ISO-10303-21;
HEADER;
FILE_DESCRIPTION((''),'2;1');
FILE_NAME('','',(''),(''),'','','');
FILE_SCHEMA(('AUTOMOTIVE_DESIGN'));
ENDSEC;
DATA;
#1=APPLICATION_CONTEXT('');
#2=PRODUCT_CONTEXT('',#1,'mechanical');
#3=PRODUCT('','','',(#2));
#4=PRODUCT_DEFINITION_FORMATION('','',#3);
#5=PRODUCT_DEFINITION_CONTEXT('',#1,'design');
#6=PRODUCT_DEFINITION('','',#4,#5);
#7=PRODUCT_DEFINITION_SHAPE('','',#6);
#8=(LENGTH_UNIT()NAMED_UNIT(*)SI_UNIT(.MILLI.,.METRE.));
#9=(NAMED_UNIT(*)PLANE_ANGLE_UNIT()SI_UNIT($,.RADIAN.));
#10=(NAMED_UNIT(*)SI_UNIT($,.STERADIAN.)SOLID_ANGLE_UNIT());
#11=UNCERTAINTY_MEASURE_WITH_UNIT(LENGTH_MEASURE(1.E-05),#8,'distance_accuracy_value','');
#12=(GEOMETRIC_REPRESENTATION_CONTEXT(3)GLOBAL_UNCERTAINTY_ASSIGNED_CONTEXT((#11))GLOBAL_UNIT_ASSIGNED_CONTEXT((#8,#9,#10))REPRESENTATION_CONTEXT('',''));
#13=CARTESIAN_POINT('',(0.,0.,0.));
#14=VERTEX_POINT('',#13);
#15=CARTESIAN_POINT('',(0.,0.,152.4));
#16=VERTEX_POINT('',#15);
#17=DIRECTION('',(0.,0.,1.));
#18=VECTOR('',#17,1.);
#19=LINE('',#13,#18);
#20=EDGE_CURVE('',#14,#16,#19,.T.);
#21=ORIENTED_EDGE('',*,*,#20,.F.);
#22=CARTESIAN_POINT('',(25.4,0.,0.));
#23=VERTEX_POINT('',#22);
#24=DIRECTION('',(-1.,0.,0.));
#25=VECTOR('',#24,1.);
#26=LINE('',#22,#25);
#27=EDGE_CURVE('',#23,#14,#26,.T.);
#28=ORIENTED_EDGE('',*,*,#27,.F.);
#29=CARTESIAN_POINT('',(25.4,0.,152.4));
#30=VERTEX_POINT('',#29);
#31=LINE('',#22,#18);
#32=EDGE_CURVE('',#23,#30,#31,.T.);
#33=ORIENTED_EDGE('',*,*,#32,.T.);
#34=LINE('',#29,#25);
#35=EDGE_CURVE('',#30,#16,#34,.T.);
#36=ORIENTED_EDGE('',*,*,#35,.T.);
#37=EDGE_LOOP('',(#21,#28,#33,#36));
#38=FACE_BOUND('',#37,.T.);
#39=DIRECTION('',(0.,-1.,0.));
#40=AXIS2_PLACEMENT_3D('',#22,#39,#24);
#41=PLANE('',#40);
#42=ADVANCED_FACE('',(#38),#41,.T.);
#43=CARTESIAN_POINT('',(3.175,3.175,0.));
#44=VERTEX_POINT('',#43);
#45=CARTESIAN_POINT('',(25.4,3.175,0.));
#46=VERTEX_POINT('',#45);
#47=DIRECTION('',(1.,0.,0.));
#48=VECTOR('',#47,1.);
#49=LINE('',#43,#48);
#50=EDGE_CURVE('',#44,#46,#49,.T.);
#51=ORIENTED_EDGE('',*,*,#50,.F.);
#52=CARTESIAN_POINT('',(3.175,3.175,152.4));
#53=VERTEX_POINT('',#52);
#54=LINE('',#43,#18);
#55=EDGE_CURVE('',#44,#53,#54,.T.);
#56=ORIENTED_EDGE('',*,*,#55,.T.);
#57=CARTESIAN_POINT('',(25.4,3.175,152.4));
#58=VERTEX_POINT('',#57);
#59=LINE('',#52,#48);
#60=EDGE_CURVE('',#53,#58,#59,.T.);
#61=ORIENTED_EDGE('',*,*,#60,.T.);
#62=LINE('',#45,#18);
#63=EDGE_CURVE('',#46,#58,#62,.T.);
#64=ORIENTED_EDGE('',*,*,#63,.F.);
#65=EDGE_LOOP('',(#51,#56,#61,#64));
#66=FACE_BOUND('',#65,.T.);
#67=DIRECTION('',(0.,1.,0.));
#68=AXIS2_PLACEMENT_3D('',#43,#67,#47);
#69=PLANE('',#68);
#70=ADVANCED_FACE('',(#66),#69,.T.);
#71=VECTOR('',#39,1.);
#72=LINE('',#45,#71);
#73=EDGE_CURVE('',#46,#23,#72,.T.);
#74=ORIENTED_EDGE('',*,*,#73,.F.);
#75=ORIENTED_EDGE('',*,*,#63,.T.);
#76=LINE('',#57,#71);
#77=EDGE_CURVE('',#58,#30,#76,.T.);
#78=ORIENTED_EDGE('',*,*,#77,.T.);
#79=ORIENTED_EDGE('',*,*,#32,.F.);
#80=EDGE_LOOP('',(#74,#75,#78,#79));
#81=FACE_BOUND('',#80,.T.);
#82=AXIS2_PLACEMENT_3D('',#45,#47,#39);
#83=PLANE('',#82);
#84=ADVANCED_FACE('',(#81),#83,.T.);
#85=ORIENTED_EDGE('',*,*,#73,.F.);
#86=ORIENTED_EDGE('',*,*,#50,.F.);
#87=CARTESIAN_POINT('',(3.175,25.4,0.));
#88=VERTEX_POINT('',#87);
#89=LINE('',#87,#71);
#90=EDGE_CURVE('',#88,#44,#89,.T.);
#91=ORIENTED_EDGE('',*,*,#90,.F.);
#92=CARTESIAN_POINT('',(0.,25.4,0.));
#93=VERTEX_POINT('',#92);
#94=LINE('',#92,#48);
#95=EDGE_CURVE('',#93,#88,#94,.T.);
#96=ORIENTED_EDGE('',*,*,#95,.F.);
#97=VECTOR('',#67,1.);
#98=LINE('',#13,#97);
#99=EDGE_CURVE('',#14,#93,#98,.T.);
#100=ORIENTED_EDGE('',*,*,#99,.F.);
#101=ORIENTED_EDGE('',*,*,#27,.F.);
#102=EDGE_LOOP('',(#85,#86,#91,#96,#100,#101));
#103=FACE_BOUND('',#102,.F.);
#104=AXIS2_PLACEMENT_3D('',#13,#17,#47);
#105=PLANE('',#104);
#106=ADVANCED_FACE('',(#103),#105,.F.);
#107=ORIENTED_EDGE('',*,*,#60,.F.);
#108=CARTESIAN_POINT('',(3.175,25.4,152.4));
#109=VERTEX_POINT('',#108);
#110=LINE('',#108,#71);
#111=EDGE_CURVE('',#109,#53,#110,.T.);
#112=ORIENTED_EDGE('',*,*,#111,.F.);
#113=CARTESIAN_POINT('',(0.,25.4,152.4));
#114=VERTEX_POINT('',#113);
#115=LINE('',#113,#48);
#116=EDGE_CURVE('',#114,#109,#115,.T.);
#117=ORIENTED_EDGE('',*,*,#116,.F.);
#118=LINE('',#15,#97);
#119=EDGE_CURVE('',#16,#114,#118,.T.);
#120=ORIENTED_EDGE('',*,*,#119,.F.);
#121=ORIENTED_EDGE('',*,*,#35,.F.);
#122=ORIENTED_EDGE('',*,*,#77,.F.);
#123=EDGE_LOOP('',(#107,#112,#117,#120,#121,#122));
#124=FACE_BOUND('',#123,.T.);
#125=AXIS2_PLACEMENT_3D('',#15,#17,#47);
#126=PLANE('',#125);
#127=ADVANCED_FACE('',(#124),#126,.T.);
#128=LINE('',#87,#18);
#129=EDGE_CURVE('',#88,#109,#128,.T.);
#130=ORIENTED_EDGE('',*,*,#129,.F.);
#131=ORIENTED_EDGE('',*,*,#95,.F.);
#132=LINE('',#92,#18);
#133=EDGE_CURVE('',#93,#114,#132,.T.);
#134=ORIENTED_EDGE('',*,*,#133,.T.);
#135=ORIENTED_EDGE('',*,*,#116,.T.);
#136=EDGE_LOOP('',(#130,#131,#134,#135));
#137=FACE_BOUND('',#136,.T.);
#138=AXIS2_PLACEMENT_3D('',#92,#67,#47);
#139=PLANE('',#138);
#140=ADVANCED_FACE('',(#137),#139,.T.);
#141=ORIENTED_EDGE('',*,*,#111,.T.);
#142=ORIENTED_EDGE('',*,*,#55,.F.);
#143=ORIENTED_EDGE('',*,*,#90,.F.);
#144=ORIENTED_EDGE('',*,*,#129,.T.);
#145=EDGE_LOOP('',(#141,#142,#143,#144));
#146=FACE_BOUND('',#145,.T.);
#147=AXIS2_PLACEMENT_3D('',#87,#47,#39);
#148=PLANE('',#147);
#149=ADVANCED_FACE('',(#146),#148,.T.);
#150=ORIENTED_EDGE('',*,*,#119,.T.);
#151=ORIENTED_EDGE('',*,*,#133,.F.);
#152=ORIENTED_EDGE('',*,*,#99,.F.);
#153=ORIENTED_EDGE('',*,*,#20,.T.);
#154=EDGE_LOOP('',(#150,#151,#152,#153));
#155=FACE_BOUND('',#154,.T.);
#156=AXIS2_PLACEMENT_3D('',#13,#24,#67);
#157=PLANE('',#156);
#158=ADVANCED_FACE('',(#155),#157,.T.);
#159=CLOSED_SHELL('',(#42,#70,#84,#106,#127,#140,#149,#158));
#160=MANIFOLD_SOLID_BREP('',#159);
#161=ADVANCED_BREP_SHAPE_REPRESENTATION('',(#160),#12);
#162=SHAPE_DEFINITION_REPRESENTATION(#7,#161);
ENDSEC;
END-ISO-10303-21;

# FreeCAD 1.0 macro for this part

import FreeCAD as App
import Part
import Sketcher
from FreeCAD import Vector
Q = App.Units.Quantity


def add_polygon(sketch, points):
    """Adds a closed chain of lines whose ends are joined by coincident constraints."""
    first, n = sketch.GeometryCount, len(points)
    for a, b in zip(points, points[1:] + points[:1]):
        sketch.addGeometry(Part.LineSegment(App.Vector(*a, 0), App.Vector(*b, 0)), False)
    for i in range(n):
        sketch.addConstraint(Sketcher.Constraint("Coincident", first + i, 2, first + (i + 1) % n, 1))

doc = App.newDocument("Part")
body = doc.addObject("PartDesign::Body", "Body")

# Sketch on XY plane
sketch1 = body.newObject("Sketcher::SketchObject", "Sketch")
sketch1.AttachmentSupport = (doc.getObject("XY_Plane"), [""])
sketch1.MapMode = "FlatFace"
add_polygon(sketch1, [(0, 25.4), (0, 0), (25.4, 0), (25.4, 3.2), (3.2, 3.2), (3.2, 25.4)])  # lines 0-5
sketch1.addConstraint([
    Sketcher.Constraint("Vertical", 0),
    Sketcher.Constraint("Horizontal", 1),
    Sketcher.Constraint("Vertical", 2),
    Sketcher.Constraint("Horizontal", 3),
    Sketcher.Constraint("Vertical", 4),
    Sketcher.Constraint("Horizontal", 5),
    Sketcher.Constraint("Coincident", 0, 2, -1, 1),
    Sketcher.Constraint("Equal", 1, 0),
    Sketcher.Constraint("Equal", 5, 2),
    Sketcher.Constraint("DistanceX", 1, 1, 1, 2, Q("1 in")),
    Sketcher.Constraint("DistanceX", 5, 2, 5, 1, Q("0.125 in")),
])
pad1 = body.newObject("PartDesign::Pad", "Pad")
pad1.Profile = sketch1
pad1.Length = Q("6 in")

doc.recompute()
